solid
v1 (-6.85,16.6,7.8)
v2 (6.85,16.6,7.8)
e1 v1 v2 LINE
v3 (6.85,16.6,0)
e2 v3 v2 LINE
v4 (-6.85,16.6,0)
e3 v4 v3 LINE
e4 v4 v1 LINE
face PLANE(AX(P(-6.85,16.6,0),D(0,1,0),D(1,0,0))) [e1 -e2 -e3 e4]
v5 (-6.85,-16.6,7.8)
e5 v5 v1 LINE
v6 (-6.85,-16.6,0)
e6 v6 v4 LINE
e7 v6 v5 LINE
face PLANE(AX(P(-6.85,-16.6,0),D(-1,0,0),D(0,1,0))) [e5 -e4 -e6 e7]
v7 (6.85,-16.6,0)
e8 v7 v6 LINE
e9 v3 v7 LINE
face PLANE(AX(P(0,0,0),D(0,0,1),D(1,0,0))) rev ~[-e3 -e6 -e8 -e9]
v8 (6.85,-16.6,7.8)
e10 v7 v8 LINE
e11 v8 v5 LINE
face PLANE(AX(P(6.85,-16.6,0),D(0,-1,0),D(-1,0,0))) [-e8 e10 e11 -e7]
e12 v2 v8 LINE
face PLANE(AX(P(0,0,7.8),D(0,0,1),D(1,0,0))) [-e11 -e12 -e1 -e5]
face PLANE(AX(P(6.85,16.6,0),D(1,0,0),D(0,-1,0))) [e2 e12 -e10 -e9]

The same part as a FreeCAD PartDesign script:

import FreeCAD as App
import Part
import Sketcher

V = App.Vector


def add_polygon(sketch, points):
    """Adds a closed chain of lines whose ends are joined by coincident constraints."""
    first, n = sketch.GeometryCount, len(points)
    for a, b in zip(points, points[1:] + points[:1]):
        sketch.addGeometry(Part.LineSegment(App.Vector(*a, 0), App.Vector(*b, 0)), False)
    for i in range(n):
        sketch.addConstraint(Sketcher.Constraint("Coincident", first + i, 2, first + (i + 1) % n, 1))

doc = App.newDocument("Part")
body = doc.addObject("PartDesign::Body", "Body")

# Sketch on XY plane
sketch1 = body.newObject("Sketcher::SketchObject", "Sketch")
sketch1.AttachmentSupport = (doc.getObject("XY_Plane"), [""])
sketch1.MapMode = "FlatFace"
add_polygon(sketch1, [(-7, 17), (-7, -17), (7, -17), (7, 17)])  # lines 0-3
sketch1.addConstraint([
    Sketcher.Constraint("Vertical", 0),
    Sketcher.Constraint("Horizontal", 1),
    Sketcher.Constraint("Vertical", 2),
    Sketcher.Constraint("Horizontal", 3),
    Sketcher.Constraint("Symmetric", 0, 2, 2, 2, -1, 1),
    Sketcher.Constraint("DistanceX", 1, 1, 1, 2, 13.7),
    Sketcher.Constraint("DistanceY", 0, 2, 0, 1, 33.2),
])
pad1 = body.newObject("PartDesign::Pad", "Pad")
pad1.Profile = sketch1
pad1.Length = 7.8

doc.recompute()
